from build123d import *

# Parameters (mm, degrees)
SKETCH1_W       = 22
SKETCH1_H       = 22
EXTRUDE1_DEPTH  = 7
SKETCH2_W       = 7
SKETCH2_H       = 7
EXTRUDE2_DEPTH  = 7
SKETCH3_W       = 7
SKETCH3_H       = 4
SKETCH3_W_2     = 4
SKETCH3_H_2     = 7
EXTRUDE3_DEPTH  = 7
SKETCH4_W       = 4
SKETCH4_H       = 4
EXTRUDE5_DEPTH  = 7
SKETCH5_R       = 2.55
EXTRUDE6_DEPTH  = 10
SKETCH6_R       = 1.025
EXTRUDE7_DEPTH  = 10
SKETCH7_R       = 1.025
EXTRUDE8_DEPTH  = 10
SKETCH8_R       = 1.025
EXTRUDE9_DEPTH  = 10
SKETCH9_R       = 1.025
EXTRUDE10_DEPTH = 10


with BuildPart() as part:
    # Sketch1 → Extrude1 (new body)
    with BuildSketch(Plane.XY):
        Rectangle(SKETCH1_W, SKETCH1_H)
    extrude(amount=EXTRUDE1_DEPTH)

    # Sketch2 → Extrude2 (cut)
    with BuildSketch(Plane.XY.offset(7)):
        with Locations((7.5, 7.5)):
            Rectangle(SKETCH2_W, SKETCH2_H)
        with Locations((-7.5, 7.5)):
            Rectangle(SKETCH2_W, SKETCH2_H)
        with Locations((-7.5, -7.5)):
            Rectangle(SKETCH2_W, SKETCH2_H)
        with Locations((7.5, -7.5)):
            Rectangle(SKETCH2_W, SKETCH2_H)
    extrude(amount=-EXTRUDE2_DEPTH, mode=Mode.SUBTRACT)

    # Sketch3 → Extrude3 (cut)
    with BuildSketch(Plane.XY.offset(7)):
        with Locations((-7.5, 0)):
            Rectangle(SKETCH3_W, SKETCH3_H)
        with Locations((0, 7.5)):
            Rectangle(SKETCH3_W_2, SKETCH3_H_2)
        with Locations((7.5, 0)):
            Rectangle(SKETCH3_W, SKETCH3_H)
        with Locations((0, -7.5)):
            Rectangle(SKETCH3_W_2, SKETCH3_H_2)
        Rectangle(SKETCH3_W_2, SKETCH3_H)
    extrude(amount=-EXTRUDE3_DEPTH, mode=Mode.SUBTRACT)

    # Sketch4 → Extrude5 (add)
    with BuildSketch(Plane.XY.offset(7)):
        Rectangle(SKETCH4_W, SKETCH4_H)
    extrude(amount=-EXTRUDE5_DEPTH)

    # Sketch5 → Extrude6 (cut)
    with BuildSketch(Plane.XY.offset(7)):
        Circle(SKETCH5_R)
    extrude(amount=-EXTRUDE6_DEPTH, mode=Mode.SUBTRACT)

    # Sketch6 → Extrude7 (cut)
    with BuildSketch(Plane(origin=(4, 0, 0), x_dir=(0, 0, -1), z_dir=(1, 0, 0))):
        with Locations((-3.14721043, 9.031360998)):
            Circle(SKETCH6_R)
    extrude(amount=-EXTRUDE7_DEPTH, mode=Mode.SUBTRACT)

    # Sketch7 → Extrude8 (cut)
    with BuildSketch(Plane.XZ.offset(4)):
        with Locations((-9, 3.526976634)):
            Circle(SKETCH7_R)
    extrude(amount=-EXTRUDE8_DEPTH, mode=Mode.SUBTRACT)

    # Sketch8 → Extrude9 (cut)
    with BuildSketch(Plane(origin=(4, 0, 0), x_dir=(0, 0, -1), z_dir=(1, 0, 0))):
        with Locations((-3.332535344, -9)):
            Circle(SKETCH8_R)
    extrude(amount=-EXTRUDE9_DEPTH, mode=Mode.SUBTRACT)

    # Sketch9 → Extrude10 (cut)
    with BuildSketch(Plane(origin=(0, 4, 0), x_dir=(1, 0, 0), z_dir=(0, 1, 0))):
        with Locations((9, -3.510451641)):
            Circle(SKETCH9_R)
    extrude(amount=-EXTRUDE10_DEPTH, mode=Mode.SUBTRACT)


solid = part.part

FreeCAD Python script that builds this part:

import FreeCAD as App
import Part
import Sketcher

V = App.Vector

doc = App.newDocument("Part")
body = doc.addObject("PartDesign::Body", "Body")

# Sketch on XY plane
sketch1 = body.newObject("Sketcher::SketchObject", "Sketch")
sketch1.AttachmentSupport = (doc.getObject("XY_Plane"), [""])
sketch1.MapMode = "FlatFace"
sketch1.addGeometry(Part.LineSegment(V(-11, 11, 0), V(-11, -11, 0)), False)
sketch1.addGeometry(Part.LineSegment(V(-11, -11, 0), V(11, -11, 0)), False)
sketch1.addGeometry(Part.LineSegment(V(11, -11, 0), V(11, 11, 0)), False)
sketch1.addGeometry(Part.LineSegment(V(11, 11, 0), V(-11, 11, 0)), False)
sketch1.addConstraint(Sketcher.Constraint("Coincident", 0, 2, 1, 1))
sketch1.addConstraint(Sketcher.Constraint("Coincident", 1, 2, 2, 1))
sketch1.addConstraint(Sketcher.Constraint("Coincident", 2, 2, 3, 1))
sketch1.addConstraint(Sketcher.Constraint("Coincident", 3, 2, 0, 1))
sketch1.addConstraint(Sketcher.Constraint("Vertical", 0))
sketch1.addConstraint(Sketcher.Constraint("Horizontal", 1))
sketch1.addConstraint(Sketcher.Constraint("Vertical", 2))
sketch1.addConstraint(Sketcher.Constraint("Horizontal", 3))
sketch1.addConstraint(Sketcher.Constraint("Symmetric", 0, 2, 2, 2, -1, 1))
sketch1.addConstraint(Sketcher.Constraint("Equal", 3, 0))
sketch1.addConstraint(Sketcher.Constraint("DistanceX", 1, 1, 1, 2, 22.0))
pad1 = body.newObject("PartDesign::Pad", "Pad")
pad1.Profile = sketch1
pad1.Length = 7

# Sketch on XY plane
sketch2 = body.newObject("Sketcher::SketchObject", "Sketch001")
sketch2.AttachmentSupport = (doc.getObject("XY_Plane"), [""])
sketch2.MapMode = "FlatFace"
sketch2.AttachmentOffset = App.Placement(V(0, 0, 7), App.Rotation())
sketch2.addGeometry(Part.LineSegment(V(4, 11, 0), V(4, 4, 0)), False)
sketch2.addGeometry(Part.LineSegment(V(4, 4, 0), V(11, 4, 0)), False)
sketch2.addGeometry(Part.LineSegment(V(11, 4, 0), V(11, 11, 0)), False)
sketch2.addGeometry(Part.LineSegment(V(11, 11, 0), V(4, 11, 0)), False)
sketch2.addGeometry(Part.LineSegment(V(-11, 11, 0), V(-11, 4, 0)), False)
sketch2.addGeometry(Part.LineSegment(V(-11, 4, 0), V(-4, 4, 0)), False)
sketch2.addGeometry(Part.LineSegment(V(-4, 4, 0), V(-4, 11, 0)), False)
sketch2.addGeometry(Part.LineSegment(V(-4, 11, 0), V(-11, 11, 0)), False)
sketch2.addGeometry(Part.LineSegment(V(-11, -4, 0), V(-11, -11, 0)), False)
sketch2.addGeometry(Part.LineSegment(V(-11, -11, 0), V(-4, -11, 0)), False)
sketch2.addGeometry(Part.LineSegment(V(-4, -11, 0), V(-4, -4, 0)), False)
sketch2.addGeometry(Part.LineSegment(V(-4, -4, 0), V(-11, -4, 0)), False)
sketch2.addGeometry(Part.LineSegment(V(4, -4, 0), V(4, -11, 0)), False)
sketch2.addGeometry(Part.LineSegment(V(4, -11, 0), V(11, -11, 0)), False)
sketch2.addGeometry(Part.LineSegment(V(11, -11, 0), V(11, -4, 0)), False)
sketch2.addGeometry(Part.LineSegment(V(11, -4, 0), V(4, -4, 0)), False)
sketch2.addConstraint(Sketcher.Constraint("Coincident", 0, 2, 1, 1))
sketch2.addConstraint(Sketcher.Constraint("Coincident", 1, 2, 2, 1))
sketch2.addConstraint(Sketcher.Constraint("Coincident", 2, 2, 3, 1))
sketch2.addConstraint(Sketcher.Constraint("Coincident", 3, 2, 0, 1))
sketch2.addConstraint(Sketcher.Constraint("Coincident", 4, 2, 5, 1))
sketch2.addConstraint(Sketcher.Constraint("Coincident", 5, 2, 6, 1))
sketch2.addConstraint(Sketcher.Constraint("Coincident", 6, 2, 7, 1))
sketch2.addConstraint(Sketcher.Constraint("Coincident", 7, 2, 4, 1))
sketch2.addConstraint(Sketcher.Constraint("Coincident", 8, 2, 9, 1))
sketch2.addConstraint(Sketcher.Constraint("Coincident", 9, 2, 10, 1))
sketch2.addConstraint(Sketcher.Constraint("Coincident", 10, 2, 11, 1))
sketch2.addConstraint(Sketcher.Constraint("Coincident", 11, 2, 8, 1))
sketch2.addConstraint(Sketcher.Constraint("Coincident", 12, 2, 13, 1))
sketch2.addConstraint(Sketcher.Constraint("Coincident", 13, 2, 14, 1))
sketch2.addConstraint(Sketcher.Constraint("Coincident", 14, 2, 15, 1))
sketch2.addConstraint(Sketcher.Constraint("Coincident", 15, 2, 12, 1))
sketch2.addConstraint(Sketcher.Constraint("Vertical", 0))
sketch2.addConstraint(Sketcher.Constraint("Horizontal", 1))
sketch2.addConstraint(Sketcher.Constraint("Vertical", 2))
sketch2.addConstraint(Sketcher.Constraint("Horizontal", 3))
sketch2.addConstraint(Sketcher.Constraint("Vertical", 4))
sketch2.addConstraint(Sketcher.Constraint("Horizontal", 5))
sketch2.addConstraint(Sketcher.Constraint("Vertical", 6))
sketch2.addConstraint(Sketcher.Constraint("Horizontal", 7))
sketch2.addConstraint(Sketcher.Constraint("Vertical", 8))
sketch2.addConstraint(Sketcher.Constraint("Horizontal", 9))
sketch2.addConstraint(Sketcher.Constraint("Vertical", 10))
sketch2.addConstraint(Sketcher.Constraint("Horizontal", 11))
sketch2.addConstraint(Sketcher.Constraint("Vertical", 12))
sketch2.addConstraint(Sketcher.Constraint("Horizontal", 13))
sketch2.addConstraint(Sketcher.Constraint("Vertical", 14))
sketch2.addConstraint(Sketcher.Constraint("Horizontal", 15))
sketch2.addConstraint(Sketcher.Constraint("Symmetric", 2, 2, 8, 2, -1, 1))
sketch2.addConstraint(Sketcher.Constraint("Symmetric", 0, 2, 10, 2, -1, 1))
sketch2.addConstraint(Sketcher.Constraint("Symmetric", 6, 2, 12, 2, -1, 1))
sketch2.addConstraint(Sketcher.Constraint("Symmetric", 4, 2, 14, 2, -1, 1))
sketch2.addConstraint(Sketcher.Constraint("Symmetric", 1, 2, 4, 2, -2))
sketch2.addConstraint(Sketcher.Constraint("Symmetric", 3, 2, 6, 2, -2))
sketch2.addConstraint(Sketcher.Constraint("Equal", 15, 0))
sketch2.addConstraint(Sketcher.Constraint("DistanceX", 1, 1, 1, 2, 7.0))
sketch2.addConstraint(Sketcher.Constraint("DistanceX", -1, 1, 0, 2, 4.0))
sketch2.addConstraint(Sketcher.Constraint("DistanceY", -1, 1, 0, 2, 4.0))
pocket1 = body.newObject("PartDesign::Pocket", "Pocket")
pocket1.Profile = sketch2
pocket1.Length = 7

# Sketch on XY plane
sketch3 = body.newObject("Sketcher::SketchObject", "Sketch002")
sketch3.AttachmentSupport = (doc.getObject("XY_Plane"), [""])
sketch3.MapMode = "FlatFace"
sketch3.AttachmentOffset = App.Placement(V(0, 0, 7), App.Rotation())
sketch3.addGeometry(Part.LineSegment(V(-11, 2, 0), V(-11, -2, 0)), False)
sketch3.addGeometry(Part.LineSegment(V(-11, -2, 0), V(-4, -2, 0)), False)
sketch3.addGeometry(Part.LineSegment(V(-4, -2, 0), V(-4, 2, 0)), False)
sketch3.addGeometry(Part.LineSegment(V(-4, 2, 0), V(-11, 2, 0)), False)
sketch3.addGeometry(Part.LineSegment(V(-2, 11, 0), V(-2, 4, 0)), False)
sketch3.addGeometry(Part.LineSegment(V(-2, 4, 0), V(2, 4, 0)), False)
sketch3.addGeometry(Part.LineSegment(V(2, 4, 0), V(2, 11, 0)), False)
sketch3.addGeometry(Part.LineSegment(V(2, 11, 0), V(-2, 11, 0)), False)
sketch3.addGeometry(Part.LineSegment(V(4, 2, 0), V(4, -2, 0)), False)
sketch3.addGeometry(Part.LineSegment(V(4, -2, 0), V(11, -2, 0)), False)
sketch3.addGeometry(Part.LineSegment(V(11, -2, 0), V(11, 2, 0)), False)
sketch3.addGeometry(Part.LineSegment(V(11, 2, 0), V(4, 2, 0)), False)
sketch3.addGeometry(Part.LineSegment(V(-2, -4, 0), V(-2, -11, 0)), False)
sketch3.addGeometry(Part.LineSegment(V(-2, -11, 0), V(2, -11, 0)), False)
sketch3.addGeometry(Part.LineSegment(V(2, -11, 0), V(2, -4, 0)), False)
sketch3.addGeometry(Part.LineSegment(V(2, -4, 0), V(-2, -4, 0)), False)
sketch3.addGeometry(Part.LineSegment(V(-2, 2, 0), V(-2, -2, 0)), False)
sketch3.addGeometry(Part.LineSegment(V(-2, -2, 0), V(2, -2, 0)), False)
sketch3.addGeometry(Part.LineSegment(V(2, -2, 0), V(2, 2, 0)), False)
sketch3.addGeometry(Part.LineSegment(V(2, 2, 0), V(-2, 2, 0)), False)
sketch3.addConstraint(Sketcher.Constraint("Coincident", 0, 2, 1, 1))
sketch3.addConstraint(Sketcher.Constraint("Coincident", 1, 2, 2, 1))
sketch3.addConstraint(Sketcher.Constraint("Coincident", 2, 2, 3, 1))
sketch3.addConstraint(Sketcher.Constraint("Coincident", 3, 2, 0, 1))
sketch3.addConstraint(Sketcher.Constraint("Coincident", 4, 2, 5, 1))
sketch3.addConstraint(Sketcher.Constraint("Coincident", 5, 2, 6, 1))
sketch3.addConstraint(Sketcher.Constraint("Coincident", 6, 2, 7, 1))
sketch3.addConstraint(Sketcher.Constraint("Coincident", 7, 2, 4, 1))
sketch3.addConstraint(Sketcher.Constraint("Coincident", 8, 2, 9, 1))
sketch3.addConstraint(Sketcher.Constraint("Coincident", 9, 2, 10, 1))
sketch3.addConstraint(Sketcher.Constraint("Coincident", 10, 2, 11, 1))
sketch3.addConstraint(Sketcher.Constraint("Coincident", 11, 2, 8, 1))
sketch3.addConstraint(Sketcher.Constraint("Coincident", 12, 2, 13, 1))
sketch3.addConstraint(Sketcher.Constraint("Coincident", 13, 2, 14, 1))
sketch3.addConstraint(Sketcher.Constraint("Coincident", 14, 2, 15, 1))
sketch3.addConstraint(Sketcher.Constraint("Coincident", 15, 2, 12, 1))
sketch3.addConstraint(Sketcher.Constraint("Coincident", 16, 2, 17, 1))
sketch3.addConstraint(Sketcher.Constraint("Coincident", 17, 2, 18, 1))
sketch3.addConstraint(Sketcher.Constraint("Coincident", 18, 2, 19, 1))
sketch3.addConstraint(Sketcher.Constraint("Coincident", 19, 2, 16, 1))
sketch3.addConstraint(Sketcher.Constraint("Vertical", 0))
sketch3.addConstraint(Sketcher.Constraint("Horizontal", 1))
sketch3.addConstraint(Sketcher.Constraint("Vertical", 2))
sketch3.addConstraint(Sketcher.Constraint("Horizontal", 3))
sketch3.addConstraint(Sketcher.Constraint("Vertical", 4))
sketch3.addConstraint(Sketcher.Constraint("Horizontal", 5))
sketch3.addConstraint(Sketcher.Constraint("Vertical", 6))
sketch3.addConstraint(Sketcher.Constraint("Horizontal", 7))
sketch3.addConstraint(Sketcher.Constraint("Vertical", 8))
sketch3.addConstraint(Sketcher.Constraint("Horizontal", 9))
sketch3.addConstraint(Sketcher.Constraint("Vertical", 10))
sketch3.addConstraint(Sketcher.Constraint("Horizontal", 11))
sketch3.addConstraint(Sketcher.Constraint("Vertical", 12))
sketch3.addConstraint(Sketcher.Constraint("Horizontal", 13))
sketch3.addConstraint(Sketcher.Constraint("Vertical", 14))
sketch3.addConstraint(Sketcher.Constraint("Horizontal", 15))
sketch3.addConstraint(Sketcher.Constraint("Vertical", 16))
sketch3.addConstraint(Sketcher.Constraint("Horizontal", 17))
sketch3.addConstraint(Sketcher.Constraint("Vertical", 18))
sketch3.addConstraint(Sketcher.Constraint("Horizontal", 19))
sketch3.addConstraint(Sketcher.Constraint("Symmetric", 2, 2, 8, 2, -1, 1))
sketch3.addConstraint(Sketcher.Constraint("Symmetric", 0, 2, 10, 2, -1, 1))
sketch3.addConstraint(Sketcher.Constraint("Symmetric", 6, 2, 12, 2, -1, 1))
sketch3.addConstraint(Sketcher.Constraint("Symmetric", 4, 2, 14, 2, -1, 1))
sketch3.addConstraint(Sketcher.Constraint("Symmetric", 16, 2, 18, 2, -1, 1))
sketch3.addConstraint(Sketcher.Constraint("Horizontal", 1, 2, 8, 2))
sketch3.addConstraint(Sketcher.Constraint("Horizontal", 9, 2, 16, 2))
sketch3.addConstraint(Sketcher.Constraint("Vertical", 7, 2, 12, 2))
sketch3.addConstraint(Sketcher.Constraint("Vertical", 15, 2, 16, 2))
sketch3.addConstraint(Sketcher.Constraint("Equal", 19, 0))
sketch3.addConstraint(Sketcher.Constraint("Equal", 11, 4))
sketch3.addConstraint(Sketcher.Constraint("DistanceX", 1, 1, 1, 2, 7.0))
sketch3.addConstraint(Sketcher.Constraint("DistanceX", 5, 1, 5, 2, 4.0))
sketch3.addConstraint(Sketcher.Constraint("DistanceX", 0, 2, -1, 1, 11.0))
sketch3.addConstraint(Sketcher.Constraint("DistanceY", -1, 1, 4, 2, 4.0))
pocket2 = body.newObject("PartDesign::Pocket", "Pocket001")
pocket2.Profile = sketch3
pocket2.Length = 7

# Sketch on XY plane
sketch4 = body.newObject("Sketcher::SketchObject", "Sketch003")
sketch4.AttachmentSupport = (doc.getObject("XY_Plane"), [""])
sketch4.MapMode = "FlatFace"
sketch4.AttachmentOffset = App.Placement(V(0, 0, 7), App.Rotation())
sketch4.addGeometry(Part.LineSegment(V(-2, 2, 0), V(-2, -2, 0)), False)
sketch4.addGeometry(Part.LineSegment(V(-2, -2, 0), V(2, -2, 0)), False)
sketch4.addGeometry(Part.LineSegment(V(2, -2, 0), V(2, 2, 0)), False)
sketch4.addGeometry(Part.LineSegment(V(2, 2, 0), V(-2, 2, 0)), False)
sketch4.addConstraint(Sketcher.Constraint("Coincident", 0, 2, 1, 1))
sketch4.addConstraint(Sketcher.Constraint("Coincident", 1, 2, 2, 1))
sketch4.addConstraint(Sketcher.Constraint("Coincident", 2, 2, 3, 1))
sketch4.addConstraint(Sketcher.Constraint("Coincident", 3, 2, 0, 1))
sketch4.addConstraint(Sketcher.Constraint("Vertical", 0))
sketch4.addConstraint(Sketcher.Constraint("Horizontal", 1))
sketch4.addConstraint(Sketcher.Constraint("Vertical", 2))
sketch4.addConstraint(Sketcher.Constraint("Horizontal", 3))
sketch4.addConstraint(Sketcher.Constraint("Symmetric", 0, 2, 2, 2, -1, 1))
sketch4.addConstraint(Sketcher.Constraint("Equal", 3, 0))
sketch4.addConstraint(Sketcher.Constraint("DistanceX", 1, 1, 1, 2, 4.0))
pad2 = body.newObject("PartDesign::Pad", "Pad001")
pad2.Profile = sketch4
pad2.Length = 7
pad2.Reversed = True

# Sketch on XY plane
sketch5 = body.newObject("Sketcher::SketchObject", "Sketch004")
sketch5.AttachmentSupport = (doc.getObject("XY_Plane"), [""])
sketch5.MapMode = "FlatFace"
sketch5.AttachmentOffset = App.Placement(V(0, 0, 7), App.Rotation())
sketch5.addGeometry(Part.Circle(V(0, 0, 0), V(0, 0, 1), 2.5), False)
sketch5.addConstraint(Sketcher.Constraint("Coincident", 0, 3, -1, 1))
sketch5.addConstraint(Sketcher.Constraint("Diameter", 0, 5.1))
pocket3 = body.newObject("PartDesign::Pocket", "Pocket002")
pocket3.Profile = sketch5
pocket3.Length = 10

# Sketch on YZ plane
sketch6 = body.newObject("Sketcher::SketchObject", "Sketch005")
sketch6.AttachmentSupport = (doc.getObject("YZ_Plane"), [""])
sketch6.MapMode = "FlatFace"
sketch6.AttachmentOffset = App.Placement(V(0, 0, 4), App.Rotation())
sketch6.addGeometry(Part.Circle(V(9, 3.1, 0), V(0, 0, 1), 1), False)
sketch6.addConstraint(Sketcher.Constraint("Diameter", 0, 2.05))
sketch6.addConstraint(Sketcher.Constraint("DistanceX", -1, 1, 0, 3, 9.031361))
sketch6.addConstraint(Sketcher.Constraint("DistanceY", -1, 1, 0, 3, 3.14721))
pocket4 = body.newObject("PartDesign::Pocket", "Pocket003")
pocket4.Profile = sketch6
pocket4.Length = 10

# Sketch on XZ plane
sketch7 = body.newObject("Sketcher::SketchObject", "Sketch006")
sketch7.AttachmentSupport = (doc.getObject("XZ_Plane"), [""])
sketch7.MapMode = "FlatFace"
sketch7.AttachmentOffset = App.Placement(V(0, 0, 4), App.Rotation())
sketch7.addGeometry(Part.Circle(V(-9, 3.5, 0), V(0, 0, 1), 1), False)
sketch7.addConstraint(Sketcher.Constraint("Diameter", 0, 2.05))
sketch7.addConstraint(Sketcher.Constraint("DistanceX", 0, 3, -1, 1, 9.0))
sketch7.addConstraint(Sketcher.Constraint("DistanceY", -1, 1, 0, 3, 3.526977))
pocket5 = body.newObject("PartDesign::Pocket", "Pocket004")
pocket5.Profile = sketch7
pocket5.Length = 10

# Sketch on YZ plane
sketch8 = body.newObject("Sketcher::SketchObject", "Sketch007")
sketch8.AttachmentSupport = (doc.getObject("YZ_Plane"), [""])
sketch8.MapMode = "FlatFace"
sketch8.AttachmentOffset = App.Placement(V(0, 0, 4), App.Rotation())
sketch8.addGeometry(Part.Circle(V(-9, 3.3, 0), V(0, 0, 1), 1), False)
sketch8.addConstraint(Sketcher.Constraint("Diameter", 0, 2.05))
sketch8.addConstraint(Sketcher.Constraint("DistanceX", 0, 3, -1, 1, 9.0))
sketch8.addConstraint(Sketcher.Constraint("DistanceY", -1, 1, 0, 3, 3.332535))
pocket6 = body.newObject("PartDesign::Pocket", "Pocket005")
pocket6.Profile = sketch8
pocket6.Length = 10

# Sketch on XZ plane
sketch9 = body.newObject("Sketcher::SketchObject", "Sketch008")
sketch9.AttachmentSupport = (doc.getObject("XZ_Plane"), [""])
sketch9.MapMode = "FlatFace"
sketch9.AttachmentOffset = App.Placement(V(0, 0, -4), App.Rotation())
sketch9.addGeometry(Part.Circle(V(9, 3.5, 0), V(0, 0, 1), 1), False)
sketch9.addConstraint(Sketcher.Constraint("Diameter", 0, 2.05))
sketch9.addConstraint(Sketcher.Constraint("DistanceX", -1, 1, 0, 3, 9.0))
sketch9.addConstraint(Sketcher.Constraint("DistanceY", -1, 1, 0, 3, 3.510452))
pocket7 = body.newObject("PartDesign::Pocket", "Pocket006")
pocket7.Profile = sketch9
pocket7.Length = 10
pocket7.Reversed = True

doc.recompute()
